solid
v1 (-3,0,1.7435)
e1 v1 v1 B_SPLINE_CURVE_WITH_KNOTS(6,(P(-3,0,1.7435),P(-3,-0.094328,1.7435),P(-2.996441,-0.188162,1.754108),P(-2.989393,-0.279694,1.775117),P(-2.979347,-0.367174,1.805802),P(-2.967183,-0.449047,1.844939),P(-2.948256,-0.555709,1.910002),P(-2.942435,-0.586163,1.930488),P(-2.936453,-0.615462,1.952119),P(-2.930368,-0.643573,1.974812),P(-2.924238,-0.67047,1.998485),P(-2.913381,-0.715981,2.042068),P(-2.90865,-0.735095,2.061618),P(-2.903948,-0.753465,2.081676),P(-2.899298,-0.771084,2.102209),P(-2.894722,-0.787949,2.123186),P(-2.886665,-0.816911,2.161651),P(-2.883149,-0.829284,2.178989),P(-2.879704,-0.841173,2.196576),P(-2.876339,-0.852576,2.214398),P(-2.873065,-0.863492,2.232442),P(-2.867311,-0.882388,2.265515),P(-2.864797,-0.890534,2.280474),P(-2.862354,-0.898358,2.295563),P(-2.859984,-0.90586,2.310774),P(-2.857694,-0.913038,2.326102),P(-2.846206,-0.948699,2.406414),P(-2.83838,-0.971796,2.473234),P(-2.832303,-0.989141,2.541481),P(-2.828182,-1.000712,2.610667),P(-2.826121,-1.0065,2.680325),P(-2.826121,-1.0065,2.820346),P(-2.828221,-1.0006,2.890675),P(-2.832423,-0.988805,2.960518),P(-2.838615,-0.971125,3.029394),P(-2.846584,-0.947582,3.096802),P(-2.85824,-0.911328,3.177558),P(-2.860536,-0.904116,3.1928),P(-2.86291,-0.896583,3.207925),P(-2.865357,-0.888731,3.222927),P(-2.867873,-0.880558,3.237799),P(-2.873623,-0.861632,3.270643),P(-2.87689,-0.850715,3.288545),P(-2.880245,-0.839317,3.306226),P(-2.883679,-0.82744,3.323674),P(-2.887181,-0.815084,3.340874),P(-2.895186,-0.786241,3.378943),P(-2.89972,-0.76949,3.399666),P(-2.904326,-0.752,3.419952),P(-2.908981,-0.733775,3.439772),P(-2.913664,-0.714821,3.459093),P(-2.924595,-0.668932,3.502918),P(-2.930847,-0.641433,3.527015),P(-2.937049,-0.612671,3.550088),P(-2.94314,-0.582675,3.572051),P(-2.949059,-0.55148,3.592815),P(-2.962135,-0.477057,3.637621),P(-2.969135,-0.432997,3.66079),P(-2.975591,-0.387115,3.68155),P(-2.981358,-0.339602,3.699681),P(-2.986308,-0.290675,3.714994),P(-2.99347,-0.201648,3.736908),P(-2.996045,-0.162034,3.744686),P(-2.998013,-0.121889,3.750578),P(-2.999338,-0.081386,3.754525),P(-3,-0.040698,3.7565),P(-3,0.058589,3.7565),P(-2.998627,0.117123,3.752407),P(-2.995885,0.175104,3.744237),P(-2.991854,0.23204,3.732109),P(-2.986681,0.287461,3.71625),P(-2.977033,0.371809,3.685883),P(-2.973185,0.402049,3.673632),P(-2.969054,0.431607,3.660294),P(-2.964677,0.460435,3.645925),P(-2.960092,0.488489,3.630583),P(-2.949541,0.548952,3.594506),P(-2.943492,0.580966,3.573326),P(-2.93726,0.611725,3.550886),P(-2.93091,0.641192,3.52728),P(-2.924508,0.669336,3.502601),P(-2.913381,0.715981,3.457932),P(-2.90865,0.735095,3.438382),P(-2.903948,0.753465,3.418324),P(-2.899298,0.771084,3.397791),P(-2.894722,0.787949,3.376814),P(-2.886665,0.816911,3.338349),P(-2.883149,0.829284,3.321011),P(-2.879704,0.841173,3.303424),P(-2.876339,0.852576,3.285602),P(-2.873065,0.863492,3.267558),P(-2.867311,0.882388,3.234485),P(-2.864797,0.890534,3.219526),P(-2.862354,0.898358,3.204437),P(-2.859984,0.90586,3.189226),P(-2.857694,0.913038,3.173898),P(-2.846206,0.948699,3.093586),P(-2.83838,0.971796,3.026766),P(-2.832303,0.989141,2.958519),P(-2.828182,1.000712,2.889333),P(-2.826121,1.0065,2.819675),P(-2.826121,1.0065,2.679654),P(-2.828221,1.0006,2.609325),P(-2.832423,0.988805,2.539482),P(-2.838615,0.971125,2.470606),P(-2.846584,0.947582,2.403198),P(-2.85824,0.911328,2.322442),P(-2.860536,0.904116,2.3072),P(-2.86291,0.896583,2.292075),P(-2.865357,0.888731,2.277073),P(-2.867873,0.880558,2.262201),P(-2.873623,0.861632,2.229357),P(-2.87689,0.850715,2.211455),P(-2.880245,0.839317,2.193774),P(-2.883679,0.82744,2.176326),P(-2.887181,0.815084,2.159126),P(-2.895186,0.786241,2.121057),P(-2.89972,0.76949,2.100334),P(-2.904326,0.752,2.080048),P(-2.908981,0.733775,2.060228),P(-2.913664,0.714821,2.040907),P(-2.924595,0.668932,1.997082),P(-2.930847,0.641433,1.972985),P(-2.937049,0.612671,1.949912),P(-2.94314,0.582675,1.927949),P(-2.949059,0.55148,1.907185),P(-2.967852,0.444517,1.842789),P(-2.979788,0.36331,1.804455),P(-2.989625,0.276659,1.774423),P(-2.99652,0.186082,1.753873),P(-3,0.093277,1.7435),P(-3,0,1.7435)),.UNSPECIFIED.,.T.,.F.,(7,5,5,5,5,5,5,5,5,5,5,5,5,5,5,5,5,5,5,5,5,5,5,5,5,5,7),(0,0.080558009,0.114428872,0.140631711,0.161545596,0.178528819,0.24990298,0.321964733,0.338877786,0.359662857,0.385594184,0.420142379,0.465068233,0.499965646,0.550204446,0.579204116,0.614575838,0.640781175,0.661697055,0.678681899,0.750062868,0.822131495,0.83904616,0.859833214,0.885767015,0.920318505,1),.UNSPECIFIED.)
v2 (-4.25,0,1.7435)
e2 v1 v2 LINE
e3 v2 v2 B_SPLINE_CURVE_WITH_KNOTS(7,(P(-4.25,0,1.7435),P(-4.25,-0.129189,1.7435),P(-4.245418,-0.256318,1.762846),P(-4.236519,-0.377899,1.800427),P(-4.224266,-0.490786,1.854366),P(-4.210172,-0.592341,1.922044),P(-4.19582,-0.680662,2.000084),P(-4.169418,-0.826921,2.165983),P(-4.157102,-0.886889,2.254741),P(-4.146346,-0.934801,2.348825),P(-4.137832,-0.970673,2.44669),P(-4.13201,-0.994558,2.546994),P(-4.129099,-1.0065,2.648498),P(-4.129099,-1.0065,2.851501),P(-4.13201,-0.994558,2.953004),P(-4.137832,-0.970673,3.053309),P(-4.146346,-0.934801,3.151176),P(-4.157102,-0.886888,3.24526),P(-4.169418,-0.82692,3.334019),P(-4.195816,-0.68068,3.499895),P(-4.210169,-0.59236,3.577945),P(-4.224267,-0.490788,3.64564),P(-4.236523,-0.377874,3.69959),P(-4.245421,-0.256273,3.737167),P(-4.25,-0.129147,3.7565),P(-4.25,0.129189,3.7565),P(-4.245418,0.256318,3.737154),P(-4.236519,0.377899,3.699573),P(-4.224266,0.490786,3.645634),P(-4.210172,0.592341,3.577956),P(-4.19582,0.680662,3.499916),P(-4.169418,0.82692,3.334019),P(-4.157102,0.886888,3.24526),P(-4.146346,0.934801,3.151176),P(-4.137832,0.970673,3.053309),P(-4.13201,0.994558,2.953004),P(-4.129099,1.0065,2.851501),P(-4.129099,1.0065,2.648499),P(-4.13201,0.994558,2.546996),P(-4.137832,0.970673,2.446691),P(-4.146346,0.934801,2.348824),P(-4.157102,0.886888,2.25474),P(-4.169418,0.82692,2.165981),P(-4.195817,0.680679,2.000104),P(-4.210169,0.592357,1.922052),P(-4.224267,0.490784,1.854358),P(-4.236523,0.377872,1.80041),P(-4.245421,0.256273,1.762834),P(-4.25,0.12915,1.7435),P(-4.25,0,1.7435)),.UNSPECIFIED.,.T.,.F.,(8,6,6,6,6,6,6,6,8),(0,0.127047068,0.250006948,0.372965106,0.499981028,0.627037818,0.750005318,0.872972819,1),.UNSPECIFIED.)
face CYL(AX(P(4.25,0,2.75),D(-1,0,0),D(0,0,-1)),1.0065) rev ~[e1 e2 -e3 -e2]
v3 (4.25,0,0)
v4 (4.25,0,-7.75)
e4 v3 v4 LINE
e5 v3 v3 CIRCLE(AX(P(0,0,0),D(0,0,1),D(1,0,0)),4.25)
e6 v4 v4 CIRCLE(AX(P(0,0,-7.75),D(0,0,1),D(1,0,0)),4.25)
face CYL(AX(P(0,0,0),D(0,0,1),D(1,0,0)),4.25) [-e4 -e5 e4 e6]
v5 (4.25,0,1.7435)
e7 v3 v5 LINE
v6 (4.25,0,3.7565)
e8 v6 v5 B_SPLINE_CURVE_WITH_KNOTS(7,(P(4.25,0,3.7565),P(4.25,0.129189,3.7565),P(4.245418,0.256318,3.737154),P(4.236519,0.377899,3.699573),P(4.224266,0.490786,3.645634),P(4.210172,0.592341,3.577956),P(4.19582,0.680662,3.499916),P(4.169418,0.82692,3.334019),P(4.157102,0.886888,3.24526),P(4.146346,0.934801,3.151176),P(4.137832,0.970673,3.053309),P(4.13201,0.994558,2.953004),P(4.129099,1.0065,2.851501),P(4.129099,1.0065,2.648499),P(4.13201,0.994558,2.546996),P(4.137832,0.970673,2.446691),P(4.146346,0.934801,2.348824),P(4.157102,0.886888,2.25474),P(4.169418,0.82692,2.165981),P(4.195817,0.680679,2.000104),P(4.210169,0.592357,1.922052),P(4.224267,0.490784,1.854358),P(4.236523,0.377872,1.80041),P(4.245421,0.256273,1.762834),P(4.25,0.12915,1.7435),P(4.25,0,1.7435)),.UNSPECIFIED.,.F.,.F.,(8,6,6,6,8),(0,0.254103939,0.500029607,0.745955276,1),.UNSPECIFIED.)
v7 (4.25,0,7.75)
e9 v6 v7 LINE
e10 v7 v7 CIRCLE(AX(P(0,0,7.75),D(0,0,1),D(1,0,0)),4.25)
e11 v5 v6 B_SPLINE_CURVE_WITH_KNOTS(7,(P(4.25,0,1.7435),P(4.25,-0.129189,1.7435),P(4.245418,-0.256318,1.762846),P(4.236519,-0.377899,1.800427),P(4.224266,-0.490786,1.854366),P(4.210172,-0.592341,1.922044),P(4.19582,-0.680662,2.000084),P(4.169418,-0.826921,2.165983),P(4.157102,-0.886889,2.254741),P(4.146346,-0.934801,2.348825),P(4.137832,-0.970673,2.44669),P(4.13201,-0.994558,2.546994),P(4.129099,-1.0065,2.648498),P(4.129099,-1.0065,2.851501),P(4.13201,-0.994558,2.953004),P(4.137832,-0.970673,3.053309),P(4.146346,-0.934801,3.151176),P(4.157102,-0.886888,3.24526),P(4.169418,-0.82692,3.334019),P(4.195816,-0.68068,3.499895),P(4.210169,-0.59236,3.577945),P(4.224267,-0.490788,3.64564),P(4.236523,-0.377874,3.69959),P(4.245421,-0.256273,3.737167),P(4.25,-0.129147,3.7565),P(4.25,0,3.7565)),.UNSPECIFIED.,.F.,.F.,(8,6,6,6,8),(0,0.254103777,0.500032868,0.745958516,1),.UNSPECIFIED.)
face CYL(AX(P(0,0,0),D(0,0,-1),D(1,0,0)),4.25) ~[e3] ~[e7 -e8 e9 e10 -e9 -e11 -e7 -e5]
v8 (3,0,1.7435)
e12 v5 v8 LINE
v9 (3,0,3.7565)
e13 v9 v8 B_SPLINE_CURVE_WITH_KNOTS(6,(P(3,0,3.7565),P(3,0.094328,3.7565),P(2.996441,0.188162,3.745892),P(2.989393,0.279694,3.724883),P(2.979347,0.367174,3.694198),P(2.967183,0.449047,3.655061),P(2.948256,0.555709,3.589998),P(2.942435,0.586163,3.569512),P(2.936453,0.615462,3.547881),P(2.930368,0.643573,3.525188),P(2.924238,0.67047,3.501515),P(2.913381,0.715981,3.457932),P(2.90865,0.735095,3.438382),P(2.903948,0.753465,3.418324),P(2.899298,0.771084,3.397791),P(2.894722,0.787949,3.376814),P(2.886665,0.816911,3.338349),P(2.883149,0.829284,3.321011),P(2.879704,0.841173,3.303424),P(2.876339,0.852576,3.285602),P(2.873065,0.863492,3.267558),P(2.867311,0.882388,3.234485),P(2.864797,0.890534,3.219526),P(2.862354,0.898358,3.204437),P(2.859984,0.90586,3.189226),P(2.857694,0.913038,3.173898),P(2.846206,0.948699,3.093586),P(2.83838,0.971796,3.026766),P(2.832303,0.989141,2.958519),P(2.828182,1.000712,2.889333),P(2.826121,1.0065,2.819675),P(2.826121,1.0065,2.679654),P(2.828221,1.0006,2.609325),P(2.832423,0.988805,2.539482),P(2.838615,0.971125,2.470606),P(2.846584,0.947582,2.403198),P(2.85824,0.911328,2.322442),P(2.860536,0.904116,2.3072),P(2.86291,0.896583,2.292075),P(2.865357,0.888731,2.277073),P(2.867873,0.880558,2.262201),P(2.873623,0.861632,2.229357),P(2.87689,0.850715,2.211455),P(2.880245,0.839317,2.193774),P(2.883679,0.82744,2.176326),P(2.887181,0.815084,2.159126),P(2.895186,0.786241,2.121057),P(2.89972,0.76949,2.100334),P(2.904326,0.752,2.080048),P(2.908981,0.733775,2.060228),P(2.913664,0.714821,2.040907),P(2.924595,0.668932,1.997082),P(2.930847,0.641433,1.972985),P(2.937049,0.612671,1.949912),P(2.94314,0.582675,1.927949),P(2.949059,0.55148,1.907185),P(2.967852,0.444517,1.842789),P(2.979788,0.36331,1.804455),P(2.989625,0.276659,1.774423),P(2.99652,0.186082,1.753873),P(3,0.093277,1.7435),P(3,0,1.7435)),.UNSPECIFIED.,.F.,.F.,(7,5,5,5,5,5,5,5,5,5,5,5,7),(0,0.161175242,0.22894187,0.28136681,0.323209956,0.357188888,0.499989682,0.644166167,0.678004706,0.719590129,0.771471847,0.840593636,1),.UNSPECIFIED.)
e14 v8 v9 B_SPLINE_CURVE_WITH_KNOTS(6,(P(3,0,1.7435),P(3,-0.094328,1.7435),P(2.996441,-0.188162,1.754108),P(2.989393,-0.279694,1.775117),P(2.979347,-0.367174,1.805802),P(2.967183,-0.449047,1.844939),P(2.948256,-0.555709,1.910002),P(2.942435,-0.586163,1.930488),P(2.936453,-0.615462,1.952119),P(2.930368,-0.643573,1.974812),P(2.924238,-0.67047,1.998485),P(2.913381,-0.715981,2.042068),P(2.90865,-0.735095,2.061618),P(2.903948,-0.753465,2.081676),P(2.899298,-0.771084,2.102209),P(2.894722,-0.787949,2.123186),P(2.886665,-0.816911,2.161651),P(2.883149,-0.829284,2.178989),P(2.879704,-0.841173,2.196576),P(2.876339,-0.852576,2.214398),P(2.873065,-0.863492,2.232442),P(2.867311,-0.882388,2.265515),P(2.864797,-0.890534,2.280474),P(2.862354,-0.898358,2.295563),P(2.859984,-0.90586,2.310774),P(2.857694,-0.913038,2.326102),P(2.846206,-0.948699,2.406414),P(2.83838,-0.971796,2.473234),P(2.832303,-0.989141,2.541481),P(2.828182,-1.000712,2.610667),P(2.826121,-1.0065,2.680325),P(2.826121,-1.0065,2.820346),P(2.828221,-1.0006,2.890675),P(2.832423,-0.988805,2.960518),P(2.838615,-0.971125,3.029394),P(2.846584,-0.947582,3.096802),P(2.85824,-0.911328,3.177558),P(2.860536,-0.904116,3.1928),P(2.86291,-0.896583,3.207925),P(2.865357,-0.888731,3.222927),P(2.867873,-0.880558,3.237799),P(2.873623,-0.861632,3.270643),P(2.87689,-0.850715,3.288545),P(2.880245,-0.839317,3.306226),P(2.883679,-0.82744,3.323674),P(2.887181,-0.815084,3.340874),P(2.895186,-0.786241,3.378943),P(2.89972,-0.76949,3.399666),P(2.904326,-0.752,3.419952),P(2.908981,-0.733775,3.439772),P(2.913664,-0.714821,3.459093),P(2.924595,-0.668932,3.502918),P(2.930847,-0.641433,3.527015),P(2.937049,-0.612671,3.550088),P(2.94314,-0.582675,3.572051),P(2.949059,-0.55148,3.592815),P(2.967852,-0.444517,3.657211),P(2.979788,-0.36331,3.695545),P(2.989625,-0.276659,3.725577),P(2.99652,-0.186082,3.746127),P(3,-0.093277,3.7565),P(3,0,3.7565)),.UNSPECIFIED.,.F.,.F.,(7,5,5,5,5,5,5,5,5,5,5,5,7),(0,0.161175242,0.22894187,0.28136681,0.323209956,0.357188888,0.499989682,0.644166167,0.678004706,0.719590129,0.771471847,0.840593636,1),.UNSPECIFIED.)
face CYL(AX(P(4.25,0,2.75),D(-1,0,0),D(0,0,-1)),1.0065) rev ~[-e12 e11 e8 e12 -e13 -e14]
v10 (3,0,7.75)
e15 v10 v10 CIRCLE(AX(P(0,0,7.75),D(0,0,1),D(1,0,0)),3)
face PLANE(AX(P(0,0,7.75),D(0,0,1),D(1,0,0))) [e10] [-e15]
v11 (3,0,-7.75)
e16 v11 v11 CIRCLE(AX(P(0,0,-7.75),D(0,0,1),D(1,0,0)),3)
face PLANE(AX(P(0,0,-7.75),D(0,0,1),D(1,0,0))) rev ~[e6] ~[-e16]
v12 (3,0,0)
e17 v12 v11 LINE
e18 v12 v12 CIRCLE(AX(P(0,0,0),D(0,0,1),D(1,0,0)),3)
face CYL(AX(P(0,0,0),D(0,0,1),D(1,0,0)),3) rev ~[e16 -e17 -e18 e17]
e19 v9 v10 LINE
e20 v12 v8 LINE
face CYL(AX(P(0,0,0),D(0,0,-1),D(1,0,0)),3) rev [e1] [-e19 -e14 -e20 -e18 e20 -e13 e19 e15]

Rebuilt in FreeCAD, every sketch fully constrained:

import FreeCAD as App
import Part
import Sketcher
from FreeCAD import Vector

doc = App.newDocument("Part")
body = doc.addObject("PartDesign::Body", "Body")

# Sketch on XY plane
sketch1 = doc.addObject("Sketcher::SketchObject", "Sketch")
body.addObject(sketch1)
sketch1.AttachmentSupport = (doc.XY_Plane, [""])
sketch1.MapMode = "FlatFace"
sketch1.addGeometry(Part.Circle(Vector(0, 0, 0), Vector(0, 0, 1), 4.25), False)
sketch1.addGeometry(Part.Circle(Vector(0, 0, 0), Vector(0, 0, 1), 3), False)
sketch1.addConstraint(Sketcher.Constraint("Coincident", 0, 3, -1, 1))
sketch1.addConstraint(Sketcher.Constraint("Coincident", 1, 3, -1, 1))
sketch1.addConstraint(Sketcher.Constraint("Diameter", 1, 6.0))
sketch1.addConstraint(Sketcher.Constraint("Diameter", 0, 8.5))
pad1 = doc.addObject("PartDesign::Pad", "Pad")
body.addObject(pad1)
pad1.Profile = sketch1
pad1.Length = 15.5
pad1.Midplane = True

# Sketch on YZ plane
sketch2 = doc.addObject("Sketcher::SketchObject", "Sketch001")
body.addObject(sketch2)
sketch2.AttachmentSupport = (doc.YZ_Plane, [""])
sketch2.MapMode = "FlatFace"
sketch2.AttachmentOffset = App.Placement(Vector(0, 0, 4.25), App.Rotation())
sketch2.addGeometry(Part.Circle(Vector(0, 2.75, 0), Vector(0, 0, 1), 1.0065), False)
sketch2.addConstraint(Sketcher.Constraint("PointOnObject", 0, 3, -2))
sketch2.addConstraint(Sketcher.Constraint("Diameter", 0, 2.013))
sketch2.addConstraint(Sketcher.Constraint("DistanceY", -1, 1, 0, 3, 2.75))
doc.recompute()
hole = doc.addObject("PartDesign::Hole", "Hole")
body.addObject(hole)
hole.Profile = sketch2
hole.ThreadType = "None"
hole.Diameter = 2.013
hole.DepthType = "ThroughAll"

doc.recompute()
